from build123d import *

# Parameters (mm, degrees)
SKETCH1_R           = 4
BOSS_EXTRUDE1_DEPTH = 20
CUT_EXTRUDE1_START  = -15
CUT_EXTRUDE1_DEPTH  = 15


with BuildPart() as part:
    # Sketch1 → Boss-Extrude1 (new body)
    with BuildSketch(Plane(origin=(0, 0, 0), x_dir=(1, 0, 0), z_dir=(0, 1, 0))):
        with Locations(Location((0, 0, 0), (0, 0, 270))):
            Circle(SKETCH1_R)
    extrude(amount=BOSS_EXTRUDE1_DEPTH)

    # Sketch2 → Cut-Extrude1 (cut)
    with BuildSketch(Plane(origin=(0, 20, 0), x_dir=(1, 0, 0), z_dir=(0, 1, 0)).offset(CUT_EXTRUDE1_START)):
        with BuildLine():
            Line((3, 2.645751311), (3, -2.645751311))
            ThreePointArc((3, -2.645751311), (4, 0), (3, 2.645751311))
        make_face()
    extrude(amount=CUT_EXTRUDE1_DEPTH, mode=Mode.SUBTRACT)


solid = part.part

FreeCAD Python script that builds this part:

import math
import FreeCAD as App
import Part
import Sketcher
from FreeCAD import Vector

doc = App.newDocument("Part")
body = doc.addObject("PartDesign::Body", "Body")

sketch1 = body.newObject("Sketcher::SketchObject", "Sketch")
sketch1.AttachmentSupport = (doc.getObject("XZ_Plane"), [""])
sketch1.MapMode = "FlatFace"
sketch1.addGeometry(Part.Circle(Vector(0, 0, 0), Vector(0, 0, 1), 4), False)
sketch1.addConstraint([
    Sketcher.Constraint("Coincident", 0, 3, -1, 1),
    Sketcher.Constraint("Diameter", 0, 8.0),
])
pad1 = body.newObject("PartDesign::Pad", "Pad")
pad1.Profile = sketch1
pad1.Length = 20
pad1.Reversed = True

sketch2 = body.newObject("Sketcher::SketchObject", "Sketch001")
sketch2.AttachmentSupport = (doc.getObject("XZ_Plane"), [""])
sketch2.MapMode = "FlatFace"
sketch2.AttachmentOffset = App.Placement(Vector(0, 0, -5), App.Rotation())
sketch2.addGeometry([
    Part.LineSegment(Vector(3, -2.645751, 0), Vector(3, 2.645751, 0)),
    Part.ArcOfCircle(Part.Circle(Vector(0, 0, 0), Vector(0, 0, 1), 4), math.radians(-41.409622), math.radians(41.409622)),
], False)
sketch2.addConstraint([
    Sketcher.Constraint("Coincident", 0, 1, 1, 1),
    Sketcher.Constraint("Coincident", 1, 2, 0, 2),
    Sketcher.Constraint("Vertical", 0),
    Sketcher.Constraint("Coincident", 1, 3, -1, 1),
    Sketcher.Constraint("Radius", 1, 4.0),
    Sketcher.Constraint("DistanceX", -1, 1, 0, 1, 3.0),
])
pocket1 = body.newObject("PartDesign::Pocket", "Pocket")
pocket1.Profile = sketch2
pocket1.Length = 15

doc.recompute()
